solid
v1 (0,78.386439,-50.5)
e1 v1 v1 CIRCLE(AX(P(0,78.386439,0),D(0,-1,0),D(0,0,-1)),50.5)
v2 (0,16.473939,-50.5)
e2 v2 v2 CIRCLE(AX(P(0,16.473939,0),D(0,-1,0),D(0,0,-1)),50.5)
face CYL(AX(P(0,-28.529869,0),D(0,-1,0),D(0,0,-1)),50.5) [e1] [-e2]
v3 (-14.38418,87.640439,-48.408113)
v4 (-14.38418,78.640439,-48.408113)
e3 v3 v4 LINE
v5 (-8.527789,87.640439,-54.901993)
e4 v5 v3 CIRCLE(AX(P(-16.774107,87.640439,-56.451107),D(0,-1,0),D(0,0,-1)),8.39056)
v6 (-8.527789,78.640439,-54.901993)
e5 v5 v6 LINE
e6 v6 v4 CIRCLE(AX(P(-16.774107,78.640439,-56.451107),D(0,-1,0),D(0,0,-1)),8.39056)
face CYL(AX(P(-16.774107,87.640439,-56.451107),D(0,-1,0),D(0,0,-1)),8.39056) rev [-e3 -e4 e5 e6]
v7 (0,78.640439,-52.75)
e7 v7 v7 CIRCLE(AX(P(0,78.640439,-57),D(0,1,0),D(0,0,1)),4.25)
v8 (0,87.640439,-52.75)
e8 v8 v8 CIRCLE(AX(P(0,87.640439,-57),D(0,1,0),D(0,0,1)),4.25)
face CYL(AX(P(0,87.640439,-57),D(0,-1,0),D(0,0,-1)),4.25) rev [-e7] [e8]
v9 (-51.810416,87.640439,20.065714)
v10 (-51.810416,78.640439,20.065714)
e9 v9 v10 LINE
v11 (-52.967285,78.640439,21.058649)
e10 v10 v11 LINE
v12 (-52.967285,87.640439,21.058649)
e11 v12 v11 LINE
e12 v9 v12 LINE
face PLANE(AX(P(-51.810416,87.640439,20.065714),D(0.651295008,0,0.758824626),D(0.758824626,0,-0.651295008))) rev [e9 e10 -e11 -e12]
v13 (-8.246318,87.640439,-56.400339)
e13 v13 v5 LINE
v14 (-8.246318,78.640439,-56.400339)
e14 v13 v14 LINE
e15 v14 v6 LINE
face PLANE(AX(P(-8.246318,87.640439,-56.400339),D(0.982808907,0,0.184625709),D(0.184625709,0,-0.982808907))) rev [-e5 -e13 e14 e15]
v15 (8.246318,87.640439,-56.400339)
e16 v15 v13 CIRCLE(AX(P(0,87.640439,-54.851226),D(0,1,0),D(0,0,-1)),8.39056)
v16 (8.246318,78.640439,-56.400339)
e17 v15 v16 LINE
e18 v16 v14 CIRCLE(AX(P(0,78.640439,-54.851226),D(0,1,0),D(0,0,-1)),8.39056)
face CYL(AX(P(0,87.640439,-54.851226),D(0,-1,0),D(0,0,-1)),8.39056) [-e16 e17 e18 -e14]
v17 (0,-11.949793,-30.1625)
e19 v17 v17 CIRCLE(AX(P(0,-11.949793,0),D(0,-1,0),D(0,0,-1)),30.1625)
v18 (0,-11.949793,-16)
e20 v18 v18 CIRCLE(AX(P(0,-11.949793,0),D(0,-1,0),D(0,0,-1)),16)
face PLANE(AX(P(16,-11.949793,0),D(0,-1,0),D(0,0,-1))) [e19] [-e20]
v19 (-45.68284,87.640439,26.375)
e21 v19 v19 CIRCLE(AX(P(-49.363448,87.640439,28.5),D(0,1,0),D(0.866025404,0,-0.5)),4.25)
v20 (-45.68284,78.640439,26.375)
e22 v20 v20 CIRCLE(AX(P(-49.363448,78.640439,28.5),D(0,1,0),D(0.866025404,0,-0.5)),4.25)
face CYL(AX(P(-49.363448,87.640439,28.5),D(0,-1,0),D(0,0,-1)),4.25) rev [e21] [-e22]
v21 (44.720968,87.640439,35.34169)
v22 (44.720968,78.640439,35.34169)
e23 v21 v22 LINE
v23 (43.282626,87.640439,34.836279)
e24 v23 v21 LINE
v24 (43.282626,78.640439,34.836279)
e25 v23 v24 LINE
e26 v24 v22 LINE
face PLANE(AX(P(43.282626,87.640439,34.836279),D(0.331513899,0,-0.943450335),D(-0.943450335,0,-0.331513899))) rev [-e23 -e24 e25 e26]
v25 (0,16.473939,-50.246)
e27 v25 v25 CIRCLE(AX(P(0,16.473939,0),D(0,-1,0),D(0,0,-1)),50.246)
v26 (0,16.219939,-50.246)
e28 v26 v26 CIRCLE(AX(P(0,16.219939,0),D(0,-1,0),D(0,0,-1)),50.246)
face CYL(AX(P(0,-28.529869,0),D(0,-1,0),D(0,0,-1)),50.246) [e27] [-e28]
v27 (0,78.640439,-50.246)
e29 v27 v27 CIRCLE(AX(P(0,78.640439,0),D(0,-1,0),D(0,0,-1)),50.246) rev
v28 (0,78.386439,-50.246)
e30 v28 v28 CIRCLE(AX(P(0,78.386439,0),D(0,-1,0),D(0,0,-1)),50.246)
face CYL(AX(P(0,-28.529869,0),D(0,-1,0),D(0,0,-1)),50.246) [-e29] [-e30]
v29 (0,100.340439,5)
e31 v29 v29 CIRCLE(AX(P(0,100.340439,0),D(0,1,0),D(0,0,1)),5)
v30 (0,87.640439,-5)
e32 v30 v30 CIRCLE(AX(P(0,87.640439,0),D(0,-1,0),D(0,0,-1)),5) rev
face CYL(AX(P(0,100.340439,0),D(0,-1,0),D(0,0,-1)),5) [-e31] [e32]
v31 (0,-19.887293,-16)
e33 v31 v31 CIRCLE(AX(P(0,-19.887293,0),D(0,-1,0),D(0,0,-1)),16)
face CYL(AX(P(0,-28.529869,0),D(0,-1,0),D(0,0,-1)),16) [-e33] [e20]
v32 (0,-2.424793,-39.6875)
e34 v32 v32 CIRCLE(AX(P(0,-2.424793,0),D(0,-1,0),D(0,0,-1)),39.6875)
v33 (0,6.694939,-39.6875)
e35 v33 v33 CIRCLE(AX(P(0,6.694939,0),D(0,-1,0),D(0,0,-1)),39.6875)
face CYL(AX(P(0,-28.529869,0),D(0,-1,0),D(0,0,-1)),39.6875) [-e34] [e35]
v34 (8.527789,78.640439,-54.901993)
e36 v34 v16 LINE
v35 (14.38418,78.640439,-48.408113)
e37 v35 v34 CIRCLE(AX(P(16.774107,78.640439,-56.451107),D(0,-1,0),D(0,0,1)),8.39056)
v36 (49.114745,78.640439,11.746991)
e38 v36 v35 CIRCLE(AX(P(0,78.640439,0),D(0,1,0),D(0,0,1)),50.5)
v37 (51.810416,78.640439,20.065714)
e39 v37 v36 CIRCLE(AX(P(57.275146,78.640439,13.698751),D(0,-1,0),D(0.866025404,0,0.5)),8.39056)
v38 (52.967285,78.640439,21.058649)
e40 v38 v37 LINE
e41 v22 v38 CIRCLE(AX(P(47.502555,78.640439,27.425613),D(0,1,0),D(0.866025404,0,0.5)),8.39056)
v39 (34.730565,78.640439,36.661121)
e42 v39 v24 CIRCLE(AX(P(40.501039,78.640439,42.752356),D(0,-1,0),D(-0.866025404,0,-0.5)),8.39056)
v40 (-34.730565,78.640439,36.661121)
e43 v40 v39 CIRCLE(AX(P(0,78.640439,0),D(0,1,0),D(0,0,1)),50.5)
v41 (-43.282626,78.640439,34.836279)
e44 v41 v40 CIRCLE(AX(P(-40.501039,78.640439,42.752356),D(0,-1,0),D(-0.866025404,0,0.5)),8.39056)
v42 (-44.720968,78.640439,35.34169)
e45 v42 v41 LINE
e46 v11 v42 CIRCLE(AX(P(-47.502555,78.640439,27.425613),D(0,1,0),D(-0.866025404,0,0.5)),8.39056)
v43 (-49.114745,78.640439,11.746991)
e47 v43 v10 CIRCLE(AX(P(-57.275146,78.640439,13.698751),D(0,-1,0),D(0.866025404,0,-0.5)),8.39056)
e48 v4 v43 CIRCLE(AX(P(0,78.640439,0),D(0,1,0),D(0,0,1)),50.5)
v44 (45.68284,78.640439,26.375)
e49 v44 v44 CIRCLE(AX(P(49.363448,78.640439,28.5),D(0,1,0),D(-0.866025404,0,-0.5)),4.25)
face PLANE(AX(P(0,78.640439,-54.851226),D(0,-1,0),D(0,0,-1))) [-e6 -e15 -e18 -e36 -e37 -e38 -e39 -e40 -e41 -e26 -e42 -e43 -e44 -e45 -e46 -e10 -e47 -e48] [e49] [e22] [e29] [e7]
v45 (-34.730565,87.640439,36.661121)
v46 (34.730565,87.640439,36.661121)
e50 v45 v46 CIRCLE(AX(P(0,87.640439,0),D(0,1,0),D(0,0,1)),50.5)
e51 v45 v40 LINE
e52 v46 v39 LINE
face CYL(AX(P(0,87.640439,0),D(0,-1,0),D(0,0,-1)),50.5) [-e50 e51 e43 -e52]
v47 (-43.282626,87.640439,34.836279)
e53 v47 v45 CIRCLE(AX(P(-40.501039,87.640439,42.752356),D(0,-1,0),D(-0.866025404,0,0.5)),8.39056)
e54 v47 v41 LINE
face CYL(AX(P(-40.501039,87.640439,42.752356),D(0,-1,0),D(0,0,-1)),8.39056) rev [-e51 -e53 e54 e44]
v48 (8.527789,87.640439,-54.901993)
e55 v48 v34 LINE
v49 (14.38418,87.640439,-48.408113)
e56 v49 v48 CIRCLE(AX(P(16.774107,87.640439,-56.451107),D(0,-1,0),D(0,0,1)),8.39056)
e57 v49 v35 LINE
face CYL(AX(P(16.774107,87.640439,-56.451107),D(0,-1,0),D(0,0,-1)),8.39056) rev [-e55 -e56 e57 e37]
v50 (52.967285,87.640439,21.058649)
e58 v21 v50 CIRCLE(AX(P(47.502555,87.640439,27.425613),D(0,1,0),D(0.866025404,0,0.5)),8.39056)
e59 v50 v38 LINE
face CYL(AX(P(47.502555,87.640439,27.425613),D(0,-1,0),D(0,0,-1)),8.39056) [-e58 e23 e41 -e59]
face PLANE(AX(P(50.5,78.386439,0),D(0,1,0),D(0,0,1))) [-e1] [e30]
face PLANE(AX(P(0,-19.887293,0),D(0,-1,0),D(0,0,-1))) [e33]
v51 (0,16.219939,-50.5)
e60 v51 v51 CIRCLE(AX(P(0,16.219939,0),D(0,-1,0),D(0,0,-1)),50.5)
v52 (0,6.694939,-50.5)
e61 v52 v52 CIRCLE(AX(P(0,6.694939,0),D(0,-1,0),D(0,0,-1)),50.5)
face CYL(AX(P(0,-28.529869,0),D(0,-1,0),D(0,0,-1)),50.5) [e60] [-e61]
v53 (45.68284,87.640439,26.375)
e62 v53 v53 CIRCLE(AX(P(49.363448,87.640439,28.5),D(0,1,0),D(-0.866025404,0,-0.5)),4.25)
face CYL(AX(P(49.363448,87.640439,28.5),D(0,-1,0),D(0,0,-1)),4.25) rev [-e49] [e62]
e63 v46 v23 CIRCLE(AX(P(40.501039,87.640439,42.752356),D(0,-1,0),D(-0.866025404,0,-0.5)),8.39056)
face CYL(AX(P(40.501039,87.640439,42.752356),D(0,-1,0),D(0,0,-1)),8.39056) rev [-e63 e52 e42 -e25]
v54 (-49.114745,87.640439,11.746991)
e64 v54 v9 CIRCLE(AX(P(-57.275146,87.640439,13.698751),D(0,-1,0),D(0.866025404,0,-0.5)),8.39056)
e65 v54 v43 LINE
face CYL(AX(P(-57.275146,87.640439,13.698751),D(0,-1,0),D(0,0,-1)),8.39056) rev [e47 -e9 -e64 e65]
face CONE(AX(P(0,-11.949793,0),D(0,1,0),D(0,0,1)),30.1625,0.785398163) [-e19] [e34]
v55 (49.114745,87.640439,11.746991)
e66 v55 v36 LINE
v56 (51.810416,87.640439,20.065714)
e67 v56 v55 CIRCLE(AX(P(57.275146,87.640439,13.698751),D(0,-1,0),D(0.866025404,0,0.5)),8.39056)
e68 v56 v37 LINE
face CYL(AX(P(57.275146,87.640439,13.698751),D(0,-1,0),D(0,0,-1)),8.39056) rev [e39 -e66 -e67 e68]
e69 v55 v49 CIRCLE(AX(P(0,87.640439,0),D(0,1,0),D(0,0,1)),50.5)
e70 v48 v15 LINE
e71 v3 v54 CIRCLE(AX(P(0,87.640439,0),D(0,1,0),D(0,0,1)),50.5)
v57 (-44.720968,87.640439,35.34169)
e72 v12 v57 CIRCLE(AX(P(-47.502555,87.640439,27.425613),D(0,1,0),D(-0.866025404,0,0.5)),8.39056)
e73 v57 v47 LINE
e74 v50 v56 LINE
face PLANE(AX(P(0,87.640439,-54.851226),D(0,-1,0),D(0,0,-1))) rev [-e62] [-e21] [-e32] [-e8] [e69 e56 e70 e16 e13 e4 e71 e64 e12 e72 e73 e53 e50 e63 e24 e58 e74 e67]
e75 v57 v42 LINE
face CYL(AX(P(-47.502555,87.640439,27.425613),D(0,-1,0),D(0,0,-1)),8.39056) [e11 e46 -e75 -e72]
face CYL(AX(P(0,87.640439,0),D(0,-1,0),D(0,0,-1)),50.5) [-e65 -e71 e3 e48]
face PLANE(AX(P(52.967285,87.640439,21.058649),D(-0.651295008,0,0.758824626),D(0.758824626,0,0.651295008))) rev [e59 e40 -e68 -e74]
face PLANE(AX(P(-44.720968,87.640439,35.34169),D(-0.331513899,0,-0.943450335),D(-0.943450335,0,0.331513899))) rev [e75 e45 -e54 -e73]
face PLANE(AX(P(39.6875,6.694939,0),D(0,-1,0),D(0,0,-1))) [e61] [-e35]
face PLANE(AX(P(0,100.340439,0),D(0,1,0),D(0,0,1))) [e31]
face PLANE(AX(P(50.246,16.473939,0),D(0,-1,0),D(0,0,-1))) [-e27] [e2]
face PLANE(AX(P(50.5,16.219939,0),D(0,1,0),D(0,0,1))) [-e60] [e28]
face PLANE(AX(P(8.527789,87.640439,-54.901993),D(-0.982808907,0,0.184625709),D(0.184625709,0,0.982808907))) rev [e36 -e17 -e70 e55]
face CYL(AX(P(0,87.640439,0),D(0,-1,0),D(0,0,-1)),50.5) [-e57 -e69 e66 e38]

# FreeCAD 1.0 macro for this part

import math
import FreeCAD as App
import Part
import Sketcher
from FreeCAD import Vector
Q = App.Units.Quantity

doc = App.newDocument("Part")
body = doc.addObject("PartDesign::Body", "Body")

sketch1 = doc.addObject("Sketcher::SketchObject", "Sketch")
body.addObject(sketch1)
sketch1.AttachmentSupport = (doc.XY_Plane, [""])
sketch1.MapMode = "FlatFace"
sketch1.addGeometry(Part.LineSegment(Vector(0, 78.640439, 0), Vector(0, -19.887293, 0)), False)
sketch1.addGeometry(Part.LineSegment(Vector(0, -19.887293, 0), Vector(16, -19.887293, 0)), False)
sketch1.addGeometry(Part.LineSegment(Vector(16, -19.887293, 0), Vector(16, -11.949793, 0)), False)
sketch1.addGeometry(Part.LineSegment(Vector(16, -11.949793, 0), Vector(30.1625, -11.949793, 0)), False)
sketch1.addGeometry(Part.LineSegment(Vector(30.1625, -11.949793, 0), Vector(39.6875, -2.424793, 0)), False)
sketch1.addGeometry(Part.LineSegment(Vector(39.6875, -2.424793, 0), Vector(39.6875, 6.694939, 0)), False)
sketch1.addGeometry(Part.LineSegment(Vector(39.6875, 6.694939, 0), Vector(50.5, 6.694939, 0)), False)
sketch1.addGeometry(Part.LineSegment(Vector(50.5, 6.694939, 0), Vector(50.5, 16.219939, 0)), False)
sketch1.addGeometry(Part.LineSegment(Vector(50.5, 16.219939, 0), Vector(50.246, 16.219939, 0)), False)
sketch1.addGeometry(Part.LineSegment(Vector(50.246, 16.219939, 0), Vector(50.246, 16.473939, 0)), False)
sketch1.addGeometry(Part.LineSegment(Vector(50.246, 16.473939, 0), Vector(50.5, 16.473939, 0)), False)
sketch1.addGeometry(Part.LineSegment(Vector(50.5, 16.473939, 0), Vector(50.5, 78.386439, 0)), False)
sketch1.addGeometry(Part.LineSegment(Vector(50.5, 78.386439, 0), Vector(50.246, 78.386439, 0)), False)
sketch1.addGeometry(Part.LineSegment(Vector(50.246, 78.386439, 0), Vector(50.246, 78.640439, 0)), False)
sketch1.addGeometry(Part.LineSegment(Vector(50.246, 78.640439, 0), Vector(0, 78.640439, 0)), False)
sketch1.addConstraint(Sketcher.Constraint("Coincident", 0, 2, 1, 1))
sketch1.addConstraint(Sketcher.Constraint("Coincident", 1, 2, 2, 1))
sketch1.addConstraint(Sketcher.Constraint("Coincident", 2, 2, 3, 1))
sketch1.addConstraint(Sketcher.Constraint("Coincident", 3, 2, 4, 1))
sketch1.addConstraint(Sketcher.Constraint("Coincident", 4, 2, 5, 1))
sketch1.addConstraint(Sketcher.Constraint("Coincident", 5, 2, 6, 1))
sketch1.addConstraint(Sketcher.Constraint("Coincident", 6, 2, 7, 1))
sketch1.addConstraint(Sketcher.Constraint("Coincident", 7, 2, 8, 1))
sketch1.addConstraint(Sketcher.Constraint("Coincident", 8, 2, 9, 1))
sketch1.addConstraint(Sketcher.Constraint("Coincident", 9, 2, 10, 1))
sketch1.addConstraint(Sketcher.Constraint("Coincident", 10, 2, 11, 1))
sketch1.addConstraint(Sketcher.Constraint("Coincident", 11, 2, 12, 1))
sketch1.addConstraint(Sketcher.Constraint("Coincident", 12, 2, 13, 1))
sketch1.addConstraint(Sketcher.Constraint("Coincident", 13, 2, 14, 1))
sketch1.addConstraint(Sketcher.Constraint("Coincident", 14, 2, 0, 1))
sketch1.addConstraint(Sketcher.Constraint("Vertical", 0))
sketch1.addConstraint(Sketcher.Constraint("Horizontal", 1))
sketch1.addConstraint(Sketcher.Constraint("Vertical", 2))
sketch1.addConstraint(Sketcher.Constraint("Horizontal", 3))
sketch1.addConstraint(Sketcher.Constraint("Vertical", 5))
sketch1.addConstraint(Sketcher.Constraint("Horizontal", 6))
sketch1.addConstraint(Sketcher.Constraint("Vertical", 7))
sketch1.addConstraint(Sketcher.Constraint("Horizontal", 8))
sketch1.addConstraint(Sketcher.Constraint("Vertical", 9))
sketch1.addConstraint(Sketcher.Constraint("Horizontal", 10))
sketch1.addConstraint(Sketcher.Constraint("Vertical", 11))
sketch1.addConstraint(Sketcher.Constraint("Horizontal", 12))
sketch1.addConstraint(Sketcher.Constraint("Vertical", 13))
sketch1.addConstraint(Sketcher.Constraint("Horizontal", 14))
sketch1.addConstraint(Sketcher.Constraint("PointOnObject", 0, 2, -2))
sketch1.addConstraint(Sketcher.Constraint("Vertical", 7, 2, 10, 2))
sketch1.addConstraint(Sketcher.Constraint("Vertical", 9, 2, 12, 2))
sketch1.addConstraint(Sketcher.Constraint("Equal", 12, 9))
sketch1.addConstraint(Sketcher.Constraint("Equal", 9, 13))
sketch1.addConstraint(Sketcher.Constraint("DistanceX", 1, 1, 1, 2, 16.0))
sketch1.addConstraint(Sketcher.Constraint("Angle", 4, Q("45 deg")))
sketch1.addConstraint(Sketcher.Constraint("DistanceX", -1, 1, 6, 2, 50.5))
sketch1.addConstraint(Sketcher.Constraint("DistanceX", 8, 2, 8, 1, 0.254))
sketch1.addConstraint(Sketcher.Constraint("DistanceY", 7, 1, 7, 2, 9.525))
sketch1.addConstraint(Sketcher.Constraint("DistanceX", 3, 1, 3, 2, 14.1625))
sketch1.addConstraint(Sketcher.Constraint("DistanceX", 6, 1, 6, 2, 10.8125))
sketch1.addConstraint(Sketcher.Constraint("DistanceY", 2, 1, 2, 2, 7.9375))
sketch1.addConstraint(Sketcher.Constraint("DistanceY", 11, 1, 11, 2, 61.9125))
sketch1.addConstraint(Sketcher.Constraint("DistanceY", 0, 2, 0, 1, 98.527731))
sketch1.addConstraint(Sketcher.Constraint("DistanceY", -1, 1, 5, 2, 6.694939))
revolution = doc.addObject("PartDesign::Revolution", "Revolution")
body.addObject(revolution)
revolution.Profile = sketch1
revolution.ReferenceAxis = (sketch1, ["V_Axis"])
revolution.Angle = 360

sketch2 = doc.addObject("Sketcher::SketchObject", "Sketch001")
body.addObject(sketch2)
sketch2.AttachmentSupport = (doc.XZ_Plane, [""])
sketch2.MapMode = "FlatFace"
sketch2.AttachmentOffset = App.Placement(Vector(0, 0, -87.640439), App.Rotation())
sketch2.addGeometry(Part.LineSegment(Vector(-8.246318, -56.400339, 0), Vector(-8.527789, -54.901994, 0)), False)
sketch2.addGeometry(Part.ArcOfCircle(Part.Circle(Vector(-16.774107, -56.451107, 0), Vector(0, 0, 1), 8.39056), math.radians(10.639311), math.radians(73.451)), False)
sketch2.addGeometry(Part.ArcOfCircle(Part.Circle(Vector(0, 0, 0), Vector(0, 0, 1), 50.5), math.radians(-73.451), math.radians(253.451)), False)
sketch2.addGeometry(Part.ArcOfCircle(Part.Circle(Vector(16.774107, -56.451107, 0), Vector(0, 0, 1), 8.39056), math.radians(106.549), math.radians(169.360689)), False)
sketch2.addGeometry(Part.LineSegment(Vector(8.527789, -54.901994, 0), Vector(8.246318, -56.400339, 0)), False)
sketch2.addGeometry(Part.ArcOfCircle(Part.Circle(Vector(0, -54.851226, 0), Vector(0, 0, 1), 8.39056), math.radians(-169.360689), math.radians(-10.639311)), False)
sketch2.addGeometry(Part.Circle(Vector(0, -57, 0), Vector(0, 0, 1), 4.25), False)
sketch2.addConstraint(Sketcher.Constraint("Tangent", 0, 2, 1, 1))
sketch2.addConstraint(Sketcher.Constraint("Tangent", 1, 2, 2, 2))
sketch2.addConstraint(Sketcher.Constraint("Tangent", 2, 1, 3, 1))
sketch2.addConstraint(Sketcher.Constraint("Tangent", 3, 2, 4, 1))
sketch2.addConstraint(Sketcher.Constraint("Tangent", 4, 2, 5, 2))
sketch2.addConstraint(Sketcher.Constraint("Tangent", 5, 1, 0, 1))
sketch2.addConstraint(Sketcher.Constraint("Coincident", 2, 3, -1, 1))
sketch2.addConstraint(Sketcher.Constraint("Equal", 1, 3))
sketch2.addConstraint(Sketcher.Constraint("Equal", 3, 5))
sketch2.addConstraint(Sketcher.Constraint("Symmetric", 0, 2, 3, 2, -2))
sketch2.addConstraint(Sketcher.Constraint("PointOnObject", 6, 3, -2))
sketch2.addConstraint(Sketcher.Constraint("Diameter", 6, 8.5))
sketch2.addConstraint(Sketcher.Constraint("Radius", 2, 50.5))
sketch2.addConstraint(Sketcher.Constraint("DistanceY", 6, 3, -1, 1, 57.0))
sketch2.addConstraint(Sketcher.Constraint("Radius", 1, 8.39056))
sketch2.addConstraint(Sketcher.Constraint("DistanceX", 0, 2, -1, 1, 8.527789))
sketch2.addConstraint(Sketcher.Constraint("DistanceX", 1, 2, -1, 1, 14.38418))
pad1 = doc.addObject("PartDesign::Pad", "Pad")
body.addObject(pad1)
pad1.Profile = sketch2
pad1.Length = 9
doc.recompute()

polarpattern = doc.addObject("PartDesign::PolarPattern", "PolarPattern")
body.addObject(polarpattern)
polarpattern.Originals = [pad1]
polarpattern.Axis = (doc.Y_Axis, [""])
polarpattern.Angle = 360
polarpattern.Occurrences = 3
body.Tip = polarpattern

sketch3 = doc.addObject("Sketcher::SketchObject", "Sketch002")
body.addObject(sketch3)
sketch3.AttachmentSupport = (doc.XZ_Plane, [""])
sketch3.MapMode = "FlatFace"
sketch3.AttachmentOffset = App.Placement(Vector(0, 0, -87.640439), App.Rotation())
sketch3.addGeometry(Part.Circle(Vector(0, 0, 0), Vector(0, 0, 1), 5), False)
sketch3.addConstraint(Sketcher.Constraint("Coincident", 0, 3, -1, 1))
sketch3.addConstraint(Sketcher.Constraint("Diameter", 0, 10.0))
pad2 = doc.addObject("PartDesign::Pad", "Pad001")
body.addObject(pad2)
pad2.Profile = sketch3
pad2.Length = 12.7
pad2.Reversed = True

doc.recompute()
